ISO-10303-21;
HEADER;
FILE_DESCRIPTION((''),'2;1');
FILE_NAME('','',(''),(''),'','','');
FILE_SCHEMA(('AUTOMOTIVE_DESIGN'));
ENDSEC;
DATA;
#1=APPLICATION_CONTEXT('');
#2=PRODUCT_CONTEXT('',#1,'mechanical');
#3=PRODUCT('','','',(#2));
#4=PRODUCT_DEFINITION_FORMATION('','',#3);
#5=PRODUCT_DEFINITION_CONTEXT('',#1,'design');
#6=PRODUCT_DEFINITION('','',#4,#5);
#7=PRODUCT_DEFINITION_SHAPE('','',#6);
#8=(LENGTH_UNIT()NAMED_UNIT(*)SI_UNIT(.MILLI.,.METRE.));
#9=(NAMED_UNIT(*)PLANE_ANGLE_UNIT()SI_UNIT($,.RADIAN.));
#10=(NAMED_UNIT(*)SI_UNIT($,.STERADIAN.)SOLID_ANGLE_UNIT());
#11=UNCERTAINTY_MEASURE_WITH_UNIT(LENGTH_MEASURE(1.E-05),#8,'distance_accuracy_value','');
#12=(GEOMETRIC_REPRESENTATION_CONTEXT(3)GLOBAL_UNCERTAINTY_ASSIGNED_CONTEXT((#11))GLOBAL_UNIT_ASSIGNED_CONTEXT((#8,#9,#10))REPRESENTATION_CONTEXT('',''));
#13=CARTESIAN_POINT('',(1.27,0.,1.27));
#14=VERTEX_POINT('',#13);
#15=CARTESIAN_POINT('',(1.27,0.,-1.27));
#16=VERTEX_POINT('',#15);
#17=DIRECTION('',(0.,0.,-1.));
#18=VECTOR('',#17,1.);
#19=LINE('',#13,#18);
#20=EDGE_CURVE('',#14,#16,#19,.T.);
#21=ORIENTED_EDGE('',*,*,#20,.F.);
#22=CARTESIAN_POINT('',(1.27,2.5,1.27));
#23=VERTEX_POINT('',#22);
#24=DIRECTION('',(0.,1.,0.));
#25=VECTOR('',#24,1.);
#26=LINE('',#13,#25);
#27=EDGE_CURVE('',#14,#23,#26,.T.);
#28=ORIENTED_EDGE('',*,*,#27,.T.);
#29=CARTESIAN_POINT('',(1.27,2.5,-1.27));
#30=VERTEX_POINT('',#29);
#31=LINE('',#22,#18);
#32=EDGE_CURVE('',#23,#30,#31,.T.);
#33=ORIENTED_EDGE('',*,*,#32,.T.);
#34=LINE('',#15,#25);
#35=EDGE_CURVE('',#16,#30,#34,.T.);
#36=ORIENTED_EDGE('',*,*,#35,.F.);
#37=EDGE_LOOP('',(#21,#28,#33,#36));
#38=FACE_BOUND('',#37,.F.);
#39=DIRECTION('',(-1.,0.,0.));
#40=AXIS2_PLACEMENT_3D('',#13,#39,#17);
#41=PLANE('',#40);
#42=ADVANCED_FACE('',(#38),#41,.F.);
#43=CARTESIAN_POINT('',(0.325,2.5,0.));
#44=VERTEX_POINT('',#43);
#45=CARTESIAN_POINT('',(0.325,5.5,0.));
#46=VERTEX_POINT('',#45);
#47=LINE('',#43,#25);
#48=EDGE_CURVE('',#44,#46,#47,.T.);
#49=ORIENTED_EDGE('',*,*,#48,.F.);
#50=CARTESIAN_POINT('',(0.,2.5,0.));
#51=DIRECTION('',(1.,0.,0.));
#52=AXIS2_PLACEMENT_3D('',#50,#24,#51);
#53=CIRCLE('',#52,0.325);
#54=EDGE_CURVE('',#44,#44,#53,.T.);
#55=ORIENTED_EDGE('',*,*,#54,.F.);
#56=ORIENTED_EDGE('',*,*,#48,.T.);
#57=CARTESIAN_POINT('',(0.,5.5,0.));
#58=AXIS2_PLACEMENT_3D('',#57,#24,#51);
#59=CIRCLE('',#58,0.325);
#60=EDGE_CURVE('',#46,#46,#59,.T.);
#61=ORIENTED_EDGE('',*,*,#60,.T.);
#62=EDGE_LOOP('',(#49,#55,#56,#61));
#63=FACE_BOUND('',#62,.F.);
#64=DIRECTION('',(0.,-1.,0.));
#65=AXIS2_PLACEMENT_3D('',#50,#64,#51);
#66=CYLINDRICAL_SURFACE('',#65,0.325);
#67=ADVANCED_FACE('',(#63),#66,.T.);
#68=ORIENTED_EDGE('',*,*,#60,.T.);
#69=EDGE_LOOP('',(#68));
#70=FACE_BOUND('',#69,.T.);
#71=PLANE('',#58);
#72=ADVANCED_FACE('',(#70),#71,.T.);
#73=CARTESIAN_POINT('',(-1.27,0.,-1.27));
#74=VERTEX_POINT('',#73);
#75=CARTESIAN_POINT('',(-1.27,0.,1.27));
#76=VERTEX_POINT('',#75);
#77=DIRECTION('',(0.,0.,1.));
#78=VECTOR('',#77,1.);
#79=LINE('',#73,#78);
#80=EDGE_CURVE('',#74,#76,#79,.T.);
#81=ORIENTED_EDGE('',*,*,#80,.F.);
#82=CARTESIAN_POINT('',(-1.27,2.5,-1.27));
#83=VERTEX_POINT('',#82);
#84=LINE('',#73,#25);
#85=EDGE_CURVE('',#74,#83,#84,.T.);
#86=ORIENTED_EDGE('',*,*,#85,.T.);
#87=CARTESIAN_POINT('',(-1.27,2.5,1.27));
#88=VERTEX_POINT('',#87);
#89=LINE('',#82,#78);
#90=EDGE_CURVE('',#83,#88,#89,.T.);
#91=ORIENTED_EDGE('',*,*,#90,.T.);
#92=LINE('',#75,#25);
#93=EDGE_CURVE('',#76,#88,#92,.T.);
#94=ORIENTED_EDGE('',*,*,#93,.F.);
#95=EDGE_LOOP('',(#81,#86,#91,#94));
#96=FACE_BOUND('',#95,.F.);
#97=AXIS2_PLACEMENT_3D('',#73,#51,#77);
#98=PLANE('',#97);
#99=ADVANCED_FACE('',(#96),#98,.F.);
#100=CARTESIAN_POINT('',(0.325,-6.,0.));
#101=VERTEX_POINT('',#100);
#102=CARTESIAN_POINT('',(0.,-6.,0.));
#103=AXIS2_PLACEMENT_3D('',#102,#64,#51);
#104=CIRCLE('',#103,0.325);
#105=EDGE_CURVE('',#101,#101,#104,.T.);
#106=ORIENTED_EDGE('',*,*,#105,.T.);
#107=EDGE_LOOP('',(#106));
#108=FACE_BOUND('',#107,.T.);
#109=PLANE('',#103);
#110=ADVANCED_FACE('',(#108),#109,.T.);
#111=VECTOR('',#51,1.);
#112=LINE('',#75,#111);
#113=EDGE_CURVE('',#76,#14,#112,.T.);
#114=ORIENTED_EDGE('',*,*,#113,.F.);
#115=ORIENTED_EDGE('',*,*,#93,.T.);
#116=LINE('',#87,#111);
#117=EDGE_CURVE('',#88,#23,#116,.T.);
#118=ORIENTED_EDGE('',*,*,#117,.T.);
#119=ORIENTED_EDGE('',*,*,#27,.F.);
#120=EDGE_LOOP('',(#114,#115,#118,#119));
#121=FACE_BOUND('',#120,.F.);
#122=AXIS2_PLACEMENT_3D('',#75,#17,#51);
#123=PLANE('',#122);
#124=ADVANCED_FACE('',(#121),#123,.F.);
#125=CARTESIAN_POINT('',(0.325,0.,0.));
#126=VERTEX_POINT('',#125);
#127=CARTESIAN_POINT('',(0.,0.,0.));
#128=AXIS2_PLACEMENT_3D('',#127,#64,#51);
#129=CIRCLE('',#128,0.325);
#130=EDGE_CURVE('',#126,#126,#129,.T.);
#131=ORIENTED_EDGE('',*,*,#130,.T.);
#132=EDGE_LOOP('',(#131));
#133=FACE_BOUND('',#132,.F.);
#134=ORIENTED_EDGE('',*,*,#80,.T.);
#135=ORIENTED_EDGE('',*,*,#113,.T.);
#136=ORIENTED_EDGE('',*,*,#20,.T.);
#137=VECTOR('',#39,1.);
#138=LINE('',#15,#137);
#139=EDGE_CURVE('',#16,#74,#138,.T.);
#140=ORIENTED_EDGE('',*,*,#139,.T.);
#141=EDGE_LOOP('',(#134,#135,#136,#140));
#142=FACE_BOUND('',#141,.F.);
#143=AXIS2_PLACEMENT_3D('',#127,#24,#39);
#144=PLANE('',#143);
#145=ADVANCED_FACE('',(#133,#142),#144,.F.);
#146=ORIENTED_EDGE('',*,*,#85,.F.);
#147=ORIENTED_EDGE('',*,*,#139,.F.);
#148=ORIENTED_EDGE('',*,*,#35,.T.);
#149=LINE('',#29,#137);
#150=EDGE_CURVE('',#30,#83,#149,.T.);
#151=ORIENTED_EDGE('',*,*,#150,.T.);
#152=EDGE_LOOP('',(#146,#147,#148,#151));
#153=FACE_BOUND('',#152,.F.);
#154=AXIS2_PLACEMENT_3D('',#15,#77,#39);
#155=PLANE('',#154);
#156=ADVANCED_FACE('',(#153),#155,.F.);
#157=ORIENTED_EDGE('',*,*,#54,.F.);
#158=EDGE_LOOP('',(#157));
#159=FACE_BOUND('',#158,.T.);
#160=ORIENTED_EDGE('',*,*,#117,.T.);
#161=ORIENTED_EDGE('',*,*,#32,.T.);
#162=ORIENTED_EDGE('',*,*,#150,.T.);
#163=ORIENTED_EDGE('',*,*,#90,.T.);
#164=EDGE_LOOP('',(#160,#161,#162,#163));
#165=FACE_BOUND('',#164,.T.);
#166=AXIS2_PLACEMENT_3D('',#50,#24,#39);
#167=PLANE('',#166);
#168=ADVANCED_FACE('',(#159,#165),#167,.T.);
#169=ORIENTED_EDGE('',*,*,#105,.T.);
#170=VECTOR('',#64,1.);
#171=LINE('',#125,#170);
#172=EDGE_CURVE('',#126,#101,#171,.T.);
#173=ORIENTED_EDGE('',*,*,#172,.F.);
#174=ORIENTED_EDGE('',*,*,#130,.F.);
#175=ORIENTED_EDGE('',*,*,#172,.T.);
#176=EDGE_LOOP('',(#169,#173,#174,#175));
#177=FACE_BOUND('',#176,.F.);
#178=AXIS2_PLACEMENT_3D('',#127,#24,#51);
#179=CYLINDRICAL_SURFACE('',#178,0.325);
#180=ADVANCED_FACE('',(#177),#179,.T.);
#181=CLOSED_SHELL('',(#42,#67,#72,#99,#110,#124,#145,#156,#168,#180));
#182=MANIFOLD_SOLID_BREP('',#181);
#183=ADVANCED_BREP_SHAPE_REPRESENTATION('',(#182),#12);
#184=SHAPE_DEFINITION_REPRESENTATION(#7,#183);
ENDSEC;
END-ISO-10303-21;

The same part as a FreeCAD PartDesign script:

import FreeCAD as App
import Part
import Sketcher

V = App.Vector

doc = App.newDocument("Part")
params = doc.addObject("Spreadsheet::Sheet", "Params")
for row, (alias, value) in enumerate([
    ("sketch1_width", "2.54 mm"),
    ("pad1_length", "2.5 mm"),
    ("sketch2_diameter", "0.65 mm"),
    ("pad2_length", "3 mm"),
    ("sketch3_diameter", "0.65 mm"),
    ("pad3_length", "6 mm"),
], start=1):
    params.set(f"A{row}", alias)
    params.set(f"B{row}", "=" + value)
    params.setAlias(f"B{row}", alias)

body = doc.addObject("PartDesign::Body", "Body")

sketch1 = body.newObject("Sketcher::SketchObject", "Sketch")
sketch1.AttachmentSupport = (doc.getObject("XZ_Plane"), [""])
sketch1.MapMode = "FlatFace"
sketch1.addGeometry([
    Part.LineSegment(V(1.27, 1.27, 0), V(1.27, -1.27, 0)),
    Part.LineSegment(V(1.27, -1.27, 0), V(-1.27, -1.27, 0)),
    Part.LineSegment(V(-1.27, -1.27, 0), V(-1.27, 1.27, 0)),
    Part.LineSegment(V(-1.27, 1.27, 0), V(1.27, 1.27, 0)),
], False)
sketch1.addConstraint([
    Sketcher.Constraint("Coincident", 0, 2, 1, 1),
    Sketcher.Constraint("Coincident", 1, 2, 2, 1),
    Sketcher.Constraint("Coincident", 2, 2, 3, 1),
    Sketcher.Constraint("Coincident", 3, 2, 0, 1),
    Sketcher.Constraint("Vertical", 0),
    Sketcher.Constraint("Horizontal", 1),
    Sketcher.Constraint("Vertical", 2),
    Sketcher.Constraint("Horizontal", 3),
    Sketcher.Constraint("Symmetric", 0, 2, 2, 2, -1, 1),
    Sketcher.Constraint("Equal", 3, 0),
    Sketcher.Constraint("DistanceX", 1, 2, 1, 1, 2.54),
])
sketch1.setExpression("Constraints[10]", "Params.sketch1_width")
pad1 = body.newObject("PartDesign::Pad", "Pad")
pad1.Profile = sketch1
pad1.setExpression("Length", "Params.pad1_length")
pad1.Reversed = True

sketch2 = body.newObject("Sketcher::SketchObject", "Sketch001")
sketch2.AttachmentSupport = (doc.getObject("XZ_Plane"), [""])
sketch2.MapMode = "FlatFace"
sketch2.AttachmentOffset = App.Placement(V(0, 0, -2.5), App.Rotation())
sketch2.addGeometry(Part.Circle(V(0, 0, 0), V(0, 0, 1), 0.325), False)
sketch2.addConstraint([
    Sketcher.Constraint("Coincident", 0, 3, -1, 1),
    Sketcher.Constraint("Diameter", 0, 0.65),
])
sketch2.setExpression("Constraints[1]", "Params.sketch2_diameter")
pad2 = body.newObject("PartDesign::Pad", "Pad001")
pad2.Profile = sketch2
pad2.setExpression("Length", "Params.pad2_length")
pad2.Reversed = True

sketch3 = body.newObject("Sketcher::SketchObject", "Sketch002")
sketch3.AttachmentSupport = (doc.getObject("XZ_Plane"), [""])
sketch3.MapMode = "FlatFace"
sketch3.addGeometry(Part.Circle(V(0, 0, 0), V(0, 0, 1), 0.325), False)
sketch3.addConstraint([
    Sketcher.Constraint("Coincident", 0, 3, -1, 1),
    Sketcher.Constraint("Diameter", 0, 0.65),
])
sketch3.setExpression("Constraints[1]", "Params.sketch3_diameter")
pad3 = body.newObject("PartDesign::Pad", "Pad002")
pad3.Profile = sketch3
pad3.setExpression("Length", "Params.pad3_length")

doc.recompute()
